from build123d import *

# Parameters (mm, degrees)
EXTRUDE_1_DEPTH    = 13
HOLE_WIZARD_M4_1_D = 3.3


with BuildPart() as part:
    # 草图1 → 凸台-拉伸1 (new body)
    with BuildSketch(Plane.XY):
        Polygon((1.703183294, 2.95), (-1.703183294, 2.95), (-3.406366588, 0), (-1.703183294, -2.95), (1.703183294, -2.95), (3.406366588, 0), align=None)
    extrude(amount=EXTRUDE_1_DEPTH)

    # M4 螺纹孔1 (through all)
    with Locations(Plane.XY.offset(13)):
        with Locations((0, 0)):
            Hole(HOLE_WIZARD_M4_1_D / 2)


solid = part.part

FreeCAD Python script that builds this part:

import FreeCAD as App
import Part
import Sketcher
from FreeCAD import Vector
Q = App.Units.Quantity


def add_polygon(sketch, points):
    """Adds a closed chain of lines whose ends are joined by coincident constraints."""
    first, n = sketch.GeometryCount, len(points)
    for a, b in zip(points, points[1:] + points[:1]):
        sketch.addGeometry(Part.LineSegment(App.Vector(*a, 0), App.Vector(*b, 0)), False)
    for i in range(n):
        sketch.addConstraint(Sketcher.Constraint("Coincident", first + i, 2, first + (i + 1) % n, 1))

doc = App.newDocument("Part")
params = doc.addObject("Spreadsheet::Sheet", "Params")
for row, (alias, value) in enumerate([
    ("pad1_length", "13 mm"),
    ("sketch2_diameter", "3.3 mm"),
    ("hole_diameter", "3.3 mm"),
], start=1):
    params.set(f"A{row}", alias)
    params.set(f"B{row}", "=" + value)
    params.setAlias(f"B{row}", alias)

body = doc.addObject("PartDesign::Body", "Body")

sketch1 = body.newObject("Sketcher::SketchObject", "Sketch")
sketch1.AttachmentSupport = (doc.getObject("XY_Plane"), [""])
sketch1.MapMode = "FlatFace"
add_polygon(sketch1, [(1.703183, 2.95), (-1.703183, 2.95), (-3.406367, 0), (-1.703183, -2.95), (1.703183, -2.95), (3.406367, 0)])
sketch1.addConstraint(Sketcher.Constraint("Horizontal", 0))
sketch1.addConstraint(Sketcher.Constraint("Horizontal", 3))
sketch1.addConstraint(Sketcher.Constraint("Symmetric", 0, 2, 3, 2, -1, 1))
sketch1.addConstraint(Sketcher.Constraint("Symmetric", 1, 2, 4, 2, -1, 1))
sketch1.addConstraint(Sketcher.Constraint("PointOnObject", 1, 2, -1))
sketch1.addConstraint(Sketcher.Constraint("Parallel", 2, 5))
sketch1.addConstraint(Sketcher.Constraint("Vertical", 0, 2, 2, 2))
sketch1.addConstraint(Sketcher.Constraint("Angle", 1, Q("-120 deg")))
sketch1.addConstraint(Sketcher.Constraint("DistanceY", 2, 2, 0, 2, Q("5.9 mm")))
sketch1.addConstraint(Sketcher.Constraint("DistanceX", 0, 2, 0, 1, Q("3.406367 mm")))
pad1 = body.newObject("PartDesign::Pad", "Pad")
pad1.Profile = sketch1
pad1.setExpression("Length", "Params.pad1_length")

sketch2 = body.newObject("Sketcher::SketchObject", "Sketch001")
sketch2.AttachmentSupport = (doc.getObject("XY_Plane"), [""])
sketch2.MapMode = "FlatFace"
sketch2.AttachmentOffset = App.Placement(Vector(0, 0, 13), App.Rotation())
sketch2.addGeometry(Part.Circle(Vector(0, 0, 0), Vector(0, 0, 1), 1.65), False)
sketch2.addConstraint(Sketcher.Constraint("Coincident", 0, 3, -1, 1))
sketch2.addConstraint(Sketcher.Constraint("Diameter", 0, Q("3.3 mm")))
sketch2.setExpression("Constraints[1]", "Params.sketch2_diameter")
doc.recompute()
hole = body.newObject("PartDesign::Hole", "Hole")
hole.Profile = sketch2
hole.ThreadType = "None"
hole.setExpression("Diameter", "Params.hole_diameter")
hole.DepthType = "ThroughAll"

doc.recompute()
